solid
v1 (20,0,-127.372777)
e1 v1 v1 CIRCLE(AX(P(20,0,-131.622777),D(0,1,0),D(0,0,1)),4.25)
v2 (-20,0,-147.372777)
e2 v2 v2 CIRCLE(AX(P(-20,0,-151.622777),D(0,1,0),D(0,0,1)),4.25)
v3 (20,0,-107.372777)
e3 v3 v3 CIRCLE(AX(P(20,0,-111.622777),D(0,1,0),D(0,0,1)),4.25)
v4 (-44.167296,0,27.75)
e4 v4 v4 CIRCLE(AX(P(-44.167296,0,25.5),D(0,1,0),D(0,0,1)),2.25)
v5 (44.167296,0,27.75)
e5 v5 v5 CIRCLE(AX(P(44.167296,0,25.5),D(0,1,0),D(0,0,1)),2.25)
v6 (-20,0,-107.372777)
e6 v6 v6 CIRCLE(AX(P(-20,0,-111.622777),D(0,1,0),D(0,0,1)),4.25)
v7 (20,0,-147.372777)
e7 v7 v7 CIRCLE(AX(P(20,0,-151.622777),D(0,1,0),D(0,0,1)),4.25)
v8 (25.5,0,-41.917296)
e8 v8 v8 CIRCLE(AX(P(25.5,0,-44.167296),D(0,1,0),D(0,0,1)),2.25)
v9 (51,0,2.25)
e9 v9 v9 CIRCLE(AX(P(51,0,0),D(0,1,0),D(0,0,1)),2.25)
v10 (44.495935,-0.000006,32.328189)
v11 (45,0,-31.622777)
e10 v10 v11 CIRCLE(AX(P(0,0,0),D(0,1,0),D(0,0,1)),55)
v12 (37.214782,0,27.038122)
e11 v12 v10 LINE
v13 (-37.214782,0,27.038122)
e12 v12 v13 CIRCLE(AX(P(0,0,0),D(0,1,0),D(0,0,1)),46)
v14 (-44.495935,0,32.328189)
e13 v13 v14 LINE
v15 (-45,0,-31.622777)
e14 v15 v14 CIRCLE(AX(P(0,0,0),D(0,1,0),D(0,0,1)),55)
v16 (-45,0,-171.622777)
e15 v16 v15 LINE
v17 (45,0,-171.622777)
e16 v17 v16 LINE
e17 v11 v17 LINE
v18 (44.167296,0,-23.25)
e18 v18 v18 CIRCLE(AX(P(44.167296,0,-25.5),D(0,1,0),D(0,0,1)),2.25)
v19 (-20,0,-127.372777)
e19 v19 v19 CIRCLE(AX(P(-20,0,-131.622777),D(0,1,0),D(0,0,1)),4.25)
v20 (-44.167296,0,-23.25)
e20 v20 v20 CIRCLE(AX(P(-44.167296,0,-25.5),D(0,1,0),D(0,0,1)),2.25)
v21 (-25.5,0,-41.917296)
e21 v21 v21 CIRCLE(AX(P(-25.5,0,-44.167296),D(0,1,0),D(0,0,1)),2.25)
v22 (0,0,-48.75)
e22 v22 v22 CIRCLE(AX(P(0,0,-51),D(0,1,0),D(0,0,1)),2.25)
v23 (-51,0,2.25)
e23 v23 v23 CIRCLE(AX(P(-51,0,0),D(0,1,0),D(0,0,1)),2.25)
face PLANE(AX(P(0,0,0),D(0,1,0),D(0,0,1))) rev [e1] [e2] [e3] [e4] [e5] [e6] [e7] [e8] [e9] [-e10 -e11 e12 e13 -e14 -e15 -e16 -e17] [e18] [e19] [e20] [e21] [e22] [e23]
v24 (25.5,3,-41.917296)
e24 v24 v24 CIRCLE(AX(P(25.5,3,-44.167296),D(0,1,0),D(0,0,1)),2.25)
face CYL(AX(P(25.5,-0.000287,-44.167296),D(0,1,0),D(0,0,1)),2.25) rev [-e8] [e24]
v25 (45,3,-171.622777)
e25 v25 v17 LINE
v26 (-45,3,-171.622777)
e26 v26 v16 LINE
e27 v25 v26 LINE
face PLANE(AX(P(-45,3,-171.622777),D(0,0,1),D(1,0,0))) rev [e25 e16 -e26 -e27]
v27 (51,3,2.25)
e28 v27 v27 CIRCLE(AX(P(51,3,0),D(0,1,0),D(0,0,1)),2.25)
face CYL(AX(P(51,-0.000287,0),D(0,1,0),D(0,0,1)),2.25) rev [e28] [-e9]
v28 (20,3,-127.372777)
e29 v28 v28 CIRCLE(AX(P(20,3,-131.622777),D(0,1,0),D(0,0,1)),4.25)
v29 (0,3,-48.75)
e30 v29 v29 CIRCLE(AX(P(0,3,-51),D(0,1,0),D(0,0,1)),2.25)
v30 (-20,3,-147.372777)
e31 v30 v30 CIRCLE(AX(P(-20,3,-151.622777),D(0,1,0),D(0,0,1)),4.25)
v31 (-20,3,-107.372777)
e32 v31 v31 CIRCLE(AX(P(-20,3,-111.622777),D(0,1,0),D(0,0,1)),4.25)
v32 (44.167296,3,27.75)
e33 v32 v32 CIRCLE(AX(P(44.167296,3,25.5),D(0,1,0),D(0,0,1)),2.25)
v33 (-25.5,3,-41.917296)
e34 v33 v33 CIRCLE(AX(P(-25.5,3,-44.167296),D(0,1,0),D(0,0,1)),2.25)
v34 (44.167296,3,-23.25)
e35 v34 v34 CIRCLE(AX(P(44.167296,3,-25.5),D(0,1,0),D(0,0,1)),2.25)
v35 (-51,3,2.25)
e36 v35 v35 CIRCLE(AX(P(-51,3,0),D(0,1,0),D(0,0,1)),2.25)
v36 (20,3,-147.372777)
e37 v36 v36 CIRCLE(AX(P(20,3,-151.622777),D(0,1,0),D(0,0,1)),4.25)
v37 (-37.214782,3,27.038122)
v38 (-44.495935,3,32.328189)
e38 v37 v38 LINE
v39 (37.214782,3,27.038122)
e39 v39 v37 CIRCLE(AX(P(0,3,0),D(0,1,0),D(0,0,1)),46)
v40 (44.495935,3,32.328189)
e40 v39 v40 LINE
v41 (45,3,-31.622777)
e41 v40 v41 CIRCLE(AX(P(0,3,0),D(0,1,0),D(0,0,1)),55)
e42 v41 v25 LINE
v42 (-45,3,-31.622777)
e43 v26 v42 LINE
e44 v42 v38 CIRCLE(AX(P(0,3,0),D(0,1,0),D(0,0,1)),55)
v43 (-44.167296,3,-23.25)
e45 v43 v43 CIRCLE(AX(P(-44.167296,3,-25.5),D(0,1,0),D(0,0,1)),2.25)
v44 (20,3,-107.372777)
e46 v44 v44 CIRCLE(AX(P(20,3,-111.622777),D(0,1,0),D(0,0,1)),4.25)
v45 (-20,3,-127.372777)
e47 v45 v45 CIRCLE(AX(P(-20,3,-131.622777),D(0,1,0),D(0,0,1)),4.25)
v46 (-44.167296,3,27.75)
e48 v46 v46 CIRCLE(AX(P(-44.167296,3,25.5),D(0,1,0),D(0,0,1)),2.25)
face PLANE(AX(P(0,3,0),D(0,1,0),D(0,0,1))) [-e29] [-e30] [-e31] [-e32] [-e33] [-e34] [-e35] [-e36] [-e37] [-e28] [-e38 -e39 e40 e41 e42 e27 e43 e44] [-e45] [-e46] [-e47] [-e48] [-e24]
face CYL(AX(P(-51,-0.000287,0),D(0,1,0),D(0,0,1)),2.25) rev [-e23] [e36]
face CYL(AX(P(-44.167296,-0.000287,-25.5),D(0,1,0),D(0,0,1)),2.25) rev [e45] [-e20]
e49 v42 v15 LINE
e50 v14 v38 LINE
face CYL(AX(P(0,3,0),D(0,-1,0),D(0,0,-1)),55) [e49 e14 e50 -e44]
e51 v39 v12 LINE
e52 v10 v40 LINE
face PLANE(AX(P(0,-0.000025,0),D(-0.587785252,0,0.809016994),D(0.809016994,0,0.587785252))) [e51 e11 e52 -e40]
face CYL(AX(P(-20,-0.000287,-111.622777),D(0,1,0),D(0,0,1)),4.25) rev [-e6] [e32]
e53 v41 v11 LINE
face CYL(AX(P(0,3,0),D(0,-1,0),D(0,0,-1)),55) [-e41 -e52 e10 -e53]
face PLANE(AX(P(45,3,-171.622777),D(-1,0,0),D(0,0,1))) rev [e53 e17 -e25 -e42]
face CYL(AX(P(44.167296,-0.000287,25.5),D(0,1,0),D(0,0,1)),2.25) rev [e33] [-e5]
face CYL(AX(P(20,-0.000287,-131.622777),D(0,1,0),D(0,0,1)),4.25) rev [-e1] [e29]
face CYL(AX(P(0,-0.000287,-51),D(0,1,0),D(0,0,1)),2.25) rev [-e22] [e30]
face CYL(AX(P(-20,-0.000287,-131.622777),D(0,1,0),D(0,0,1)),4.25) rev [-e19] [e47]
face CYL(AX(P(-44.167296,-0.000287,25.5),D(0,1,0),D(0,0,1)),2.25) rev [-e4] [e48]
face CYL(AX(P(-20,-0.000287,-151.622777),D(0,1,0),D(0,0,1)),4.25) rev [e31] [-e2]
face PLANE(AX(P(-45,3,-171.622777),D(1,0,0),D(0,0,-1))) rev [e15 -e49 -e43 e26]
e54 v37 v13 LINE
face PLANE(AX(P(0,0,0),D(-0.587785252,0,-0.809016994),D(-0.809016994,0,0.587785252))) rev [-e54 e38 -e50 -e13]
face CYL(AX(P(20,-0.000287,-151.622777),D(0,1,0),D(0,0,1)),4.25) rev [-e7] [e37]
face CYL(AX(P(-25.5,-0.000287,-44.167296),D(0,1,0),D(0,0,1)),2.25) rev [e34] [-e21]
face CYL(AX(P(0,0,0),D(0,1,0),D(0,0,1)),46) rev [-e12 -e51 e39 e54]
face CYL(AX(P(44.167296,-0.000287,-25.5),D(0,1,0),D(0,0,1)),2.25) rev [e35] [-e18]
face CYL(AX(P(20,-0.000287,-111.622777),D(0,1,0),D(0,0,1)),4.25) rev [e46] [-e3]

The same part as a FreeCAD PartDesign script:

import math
import FreeCAD as App
import Part
import Sketcher
Q = App.Units.Quantity


def add_polygon(sketch, points):
    """Adds a closed chain of lines whose ends are joined by coincident constraints."""
    first, n = sketch.GeometryCount, len(points)
    for a, b in zip(points, points[1:] + points[:1]):
        sketch.addGeometry(Part.LineSegment(App.Vector(*a, 0), App.Vector(*b, 0)), False)
    for i in range(n):
        sketch.addConstraint(Sketcher.Constraint("Coincident", first + i, 2, first + (i + 1) % n, 1))

doc = App.newDocument("Part")
body = doc.addObject("PartDesign::Body", "Body")

sketch1 = body.newObject("Sketcher::SketchObject", "Sketch")
sketch1.AttachmentSupport = (doc.getObject("XZ_Plane"), [""])
sketch1.MapMode = "FlatFace"
sketch1.addGeometry(Part.Circle(App.Vector(0, 0, 0), App.Vector(0, 0, 1), 55), False)
sketch1.addConstraint([
    Sketcher.Constraint("Coincident", 0, 3, -1, 1),
    Sketcher.Constraint("Diameter", 0, 110.0),
])
pad1 = body.newObject("PartDesign::Pad", "Pad")
pad1.Profile = sketch1
pad1.Length = 3
pad1.Reversed = True

sketch2 = body.newObject("Sketcher::SketchObject", "Sketch001")
sketch2.AttachmentSupport = (doc.getObject("XZ_Plane"), [""])
sketch2.MapMode = "FlatFace"
add_polygon(sketch2, [(-45, -172), (-45, -32), (45, -32), (45, -172)])
sketch2.addConstraint([
    Sketcher.Constraint("Vertical", 0),
    Sketcher.Constraint("Horizontal", 1),
    Sketcher.Constraint("Vertical", 2),
    Sketcher.Constraint("Horizontal", 3),
    Sketcher.Constraint("DistanceX", 1, 1, 1, 2, 90.0),
    Sketcher.Constraint("DistanceY", 0, 1, 0, 2, 140.0),
    Sketcher.Constraint("DistanceX", 0, 2, -1, 1, 45.0),
    Sketcher.Constraint("DistanceY", 0, 2, -1, 1, 31.622777),
])
pad2 = body.newObject("PartDesign::Pad", "Pad001")
pad2.Profile = sketch2
pad2.Length = 3
pad2.Reversed = True

sketch3 = body.newObject("Sketcher::SketchObject", "Sketch002")
sketch3.AttachmentSupport = (doc.getObject("XZ_Plane"), [""])
sketch3.MapMode = "FlatFace"
sketch3.AttachmentOffset = App.Placement(App.Vector(0, 0, -3), App.Rotation())
sketch3.addGeometry(Part.Circle(App.Vector(0, 0, 0), App.Vector(0, 0, 1), 46), False)
sketch3.addConstraint([
    Sketcher.Constraint("Coincident", 0, 3, -1, 1),
    Sketcher.Constraint("Diameter", 0, 92.0),
])
pocket1 = body.newObject("PartDesign::Pocket", "Pocket")
pocket1.Profile = sketch3
pocket1.Type = "ThroughAll"
pocket1.Midplane = True

sketch4 = body.newObject("Sketcher::SketchObject", "Sketch003")
sketch4.AttachmentSupport = (doc.getObject("XZ_Plane"), [""])
sketch4.MapMode = "FlatFace"
sketch4.AttachmentOffset = App.Placement(App.Vector(0, 0, 1), App.Rotation())
sketch4.addGeometry([
    Part.LineSegment(App.Vector(0, 55, 0), App.Vector(0, 0, 0)),
    Part.LineSegment(App.Vector(0, 0, 0), App.Vector(-44, 32, 0)),
    Part.ArcOfCircle(Part.Circle(App.Vector(0, 0, 0), App.Vector(0, 0, 1), 55), math.radians(90), math.radians(144)),
], False)
sketch4.addConstraint([
    Sketcher.Constraint("Coincident", 0, 2, 1, 1),
    Sketcher.Constraint("Coincident", 1, 2, 2, 2),
    Sketcher.Constraint("Coincident", 2, 1, 0, 1),
    Sketcher.Constraint("Vertical", 0),
    Sketcher.Constraint("Coincident", 2, 3, -1, 1),
    Sketcher.Constraint("Coincident", 0, 2, -1, 1),
    Sketcher.Constraint("Radius", 2, 55.0),
    Sketcher.Constraint("Angle", 1, Q("144 deg")),
])
pocket2 = body.newObject("PartDesign::Pocket", "Pocket001")
pocket2.Profile = sketch4
pocket2.Length = 5
doc.recompute()

mirrored = body.newObject("PartDesign::Mirrored", "Mirrored")
mirrored.Originals = [pocket2]
mirrored.MirrorPlane = (doc.getObject("YZ_Plane"), [""])
body.Tip = mirrored

sketch5 = body.newObject("Sketcher::SketchObject", "Sketch004")
sketch5.AttachmentSupport = (doc.getObject("XZ_Plane"), [""])
sketch5.MapMode = "FlatFace"
sketch5.AttachmentOffset = App.Placement(App.Vector(0, 0, 1), App.Rotation())
sketch5.addGeometry(Part.Circle(App.Vector(0, -51, 0), App.Vector(0, 0, 1), 2.2), False)
sketch5.addConstraint([
    Sketcher.Constraint("PointOnObject", 0, 3, -2),
    Sketcher.Constraint("Diameter", 0, 4.5),
    Sketcher.Constraint("DistanceY", 0, 3, -1, 1, 51.0),
])
pocket3 = body.newObject("PartDesign::Pocket", "Pocket002")
pocket3.Profile = sketch5
pocket3.Length = 5
doc.recompute()

polarpattern = body.newObject("PartDesign::PolarPattern", "PolarPattern")
polarpattern.Originals = [pocket3]
polarpattern.Axis = (doc.getObject("Y_Axis"), [""])
polarpattern.Angle = 360
polarpattern.Occurrences = 12
body.Tip = polarpattern

sketch6 = body.newObject("Sketcher::SketchObject", "Sketch005")
sketch6.AttachmentSupport = (doc.getObject("XZ_Plane"), [""])
sketch6.MapMode = "FlatFace"
sketch6.AttachmentOffset = App.Placement(App.Vector(0, 0, 1), App.Rotation())
sketch6.addGeometry([
    Part.Circle(App.Vector(20, -151.6, 0), App.Vector(0, 0, 1), 4.2),
    Part.Circle(App.Vector(-20, -151.6, 0), App.Vector(0, 0, 1), 4.2),
], False)
sketch6.addConstraint([
    Sketcher.Constraint("Equal", 0, 1),
    Sketcher.Constraint("Symmetric", 0, 3, 1, 3, -2),
    Sketcher.Constraint("Diameter", 0, 8.5),
    Sketcher.Constraint("DistanceX", -1, 1, 0, 3, 20.0),
    Sketcher.Constraint("DistanceY", 0, 3, -1, 1, 151.622777),
])
pocket4 = body.newObject("PartDesign::Pocket", "Pocket003")
pocket4.Profile = sketch6
pocket4.Length = 5
doc.recompute()

linearpattern = body.newObject("PartDesign::LinearPattern", "LinearPattern")
linearpattern.Originals = [pocket4]
linearpattern.Direction = (doc.getObject("Z_Axis"), [""])
linearpattern.Mode = "offset"
linearpattern.Offset = 20
linearpattern.Occurrences = 3
body.Tip = linearpattern

doc.recompute()
